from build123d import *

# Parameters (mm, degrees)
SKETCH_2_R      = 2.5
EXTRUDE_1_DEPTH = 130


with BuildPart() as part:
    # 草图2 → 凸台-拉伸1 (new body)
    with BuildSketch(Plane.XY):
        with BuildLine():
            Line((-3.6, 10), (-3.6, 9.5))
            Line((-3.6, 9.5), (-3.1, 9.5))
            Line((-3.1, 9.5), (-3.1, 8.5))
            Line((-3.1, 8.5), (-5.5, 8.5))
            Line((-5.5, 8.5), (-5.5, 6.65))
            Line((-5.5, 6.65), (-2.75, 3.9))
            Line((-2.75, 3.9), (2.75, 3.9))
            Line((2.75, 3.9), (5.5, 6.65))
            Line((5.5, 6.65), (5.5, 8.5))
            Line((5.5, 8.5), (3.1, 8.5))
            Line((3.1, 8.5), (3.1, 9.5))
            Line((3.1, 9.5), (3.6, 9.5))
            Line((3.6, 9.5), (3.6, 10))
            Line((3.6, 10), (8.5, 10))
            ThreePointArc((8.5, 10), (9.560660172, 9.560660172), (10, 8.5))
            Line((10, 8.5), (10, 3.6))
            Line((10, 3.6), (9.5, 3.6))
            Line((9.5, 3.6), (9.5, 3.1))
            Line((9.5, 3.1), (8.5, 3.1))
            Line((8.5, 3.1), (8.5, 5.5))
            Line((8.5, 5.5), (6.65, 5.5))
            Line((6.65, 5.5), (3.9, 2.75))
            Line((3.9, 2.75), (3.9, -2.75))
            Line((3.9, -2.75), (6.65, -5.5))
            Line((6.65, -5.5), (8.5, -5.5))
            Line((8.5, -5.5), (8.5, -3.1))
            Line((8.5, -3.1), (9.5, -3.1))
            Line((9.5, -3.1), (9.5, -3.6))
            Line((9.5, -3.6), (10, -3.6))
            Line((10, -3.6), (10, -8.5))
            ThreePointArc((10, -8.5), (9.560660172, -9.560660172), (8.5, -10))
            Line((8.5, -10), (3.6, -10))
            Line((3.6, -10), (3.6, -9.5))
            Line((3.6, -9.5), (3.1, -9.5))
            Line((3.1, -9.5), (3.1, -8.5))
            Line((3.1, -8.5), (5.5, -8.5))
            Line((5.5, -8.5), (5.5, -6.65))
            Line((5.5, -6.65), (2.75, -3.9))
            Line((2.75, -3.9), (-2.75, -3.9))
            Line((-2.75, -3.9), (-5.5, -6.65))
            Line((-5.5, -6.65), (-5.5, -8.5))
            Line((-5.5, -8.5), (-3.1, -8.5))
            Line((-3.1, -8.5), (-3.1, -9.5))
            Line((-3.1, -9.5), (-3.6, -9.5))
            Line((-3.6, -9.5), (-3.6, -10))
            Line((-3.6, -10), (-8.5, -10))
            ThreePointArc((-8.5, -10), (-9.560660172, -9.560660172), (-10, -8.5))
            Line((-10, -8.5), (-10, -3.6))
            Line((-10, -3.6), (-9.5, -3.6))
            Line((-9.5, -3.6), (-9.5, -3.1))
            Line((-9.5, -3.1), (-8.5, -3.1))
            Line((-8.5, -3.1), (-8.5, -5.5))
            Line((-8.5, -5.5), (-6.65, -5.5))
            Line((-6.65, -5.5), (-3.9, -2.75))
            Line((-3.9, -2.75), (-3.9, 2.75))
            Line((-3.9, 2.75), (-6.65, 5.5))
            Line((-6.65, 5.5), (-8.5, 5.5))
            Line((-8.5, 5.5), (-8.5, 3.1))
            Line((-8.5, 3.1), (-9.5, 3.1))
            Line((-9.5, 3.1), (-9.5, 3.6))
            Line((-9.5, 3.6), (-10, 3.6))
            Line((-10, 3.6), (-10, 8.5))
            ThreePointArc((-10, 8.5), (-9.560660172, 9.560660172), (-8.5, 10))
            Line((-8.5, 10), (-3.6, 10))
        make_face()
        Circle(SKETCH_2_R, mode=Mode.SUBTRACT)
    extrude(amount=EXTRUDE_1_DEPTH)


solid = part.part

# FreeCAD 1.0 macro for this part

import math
import FreeCAD as App
import Part
import Sketcher
Q = App.Units.Quantity

doc = App.newDocument("Part")
body = doc.addObject("PartDesign::Body", "Body")

sketch1 = body.newObject("Sketcher::SketchObject", "Sketch")
sketch1.AttachmentSupport = (doc.getObject("XY_Plane"), [""])
sketch1.MapMode = "FlatFace"
sketch1.addGeometry(Part.LineSegment(App.Vector(-3.6, 9.5, 0), App.Vector(-3.6, 10, 0)), False)
sketch1.addGeometry(Part.LineSegment(App.Vector(-3.6, 10, 0), App.Vector(-8.5, 10, 0)), False)
sketch1.addGeometry(Part.ArcOfCircle(Part.Circle(App.Vector(-8.5, 8.5, 0), App.Vector(0, 0, 1), 1.5), math.radians(90), math.radians(180)), False)
sketch1.addGeometry(Part.LineSegment(App.Vector(-10, 8.5, 0), App.Vector(-10, 3.6, 0)), False)
sketch1.addGeometry(Part.LineSegment(App.Vector(-10, 3.6, 0), App.Vector(-9.5, 3.6, 0)), False)
sketch1.addGeometry(Part.LineSegment(App.Vector(-9.5, 3.6, 0), App.Vector(-9.5, 3.1, 0)), False)
sketch1.addGeometry(Part.LineSegment(App.Vector(-9.5, 3.1, 0), App.Vector(-8.5, 3.1, 0)), False)
sketch1.addGeometry(Part.LineSegment(App.Vector(-8.5, 3.1, 0), App.Vector(-8.5, 5.5, 0)), False)
sketch1.addGeometry(Part.LineSegment(App.Vector(-8.5, 5.5, 0), App.Vector(-6.7, 5.5, 0)), False)
sketch1.addGeometry(Part.LineSegment(App.Vector(-6.7, 5.5, 0), App.Vector(-3.9, 2.8, 0)), False)
sketch1.addGeometry(Part.LineSegment(App.Vector(-3.9, 2.8, 0), App.Vector(-3.9, -2.8, 0)), False)
sketch1.addGeometry(Part.LineSegment(App.Vector(-3.9, -2.8, 0), App.Vector(-6.7, -5.5, 0)), False)
sketch1.addGeometry(Part.LineSegment(App.Vector(-6.7, -5.5, 0), App.Vector(-8.5, -5.5, 0)), False)
sketch1.addGeometry(Part.LineSegment(App.Vector(-8.5, -5.5, 0), App.Vector(-8.5, -3.1, 0)), False)
sketch1.addGeometry(Part.LineSegment(App.Vector(-8.5, -3.1, 0), App.Vector(-9.5, -3.1, 0)), False)
sketch1.addGeometry(Part.LineSegment(App.Vector(-9.5, -3.1, 0), App.Vector(-9.5, -3.6, 0)), False)
sketch1.addGeometry(Part.LineSegment(App.Vector(-9.5, -3.6, 0), App.Vector(-10, -3.6, 0)), False)
sketch1.addGeometry(Part.LineSegment(App.Vector(-10, -3.6, 0), App.Vector(-10, -8.5, 0)), False)
sketch1.addGeometry(Part.ArcOfCircle(Part.Circle(App.Vector(-8.5, -8.5, 0), App.Vector(0, 0, 1), 1.5), math.radians(180), math.radians(270)), False)
sketch1.addGeometry(Part.LineSegment(App.Vector(-8.5, -10, 0), App.Vector(-3.6, -10, 0)), False)
sketch1.addGeometry(Part.LineSegment(App.Vector(-3.6, -10, 0), App.Vector(-3.6, -9.5, 0)), False)
sketch1.addGeometry(Part.LineSegment(App.Vector(-3.6, -9.5, 0), App.Vector(-3.1, -9.5, 0)), False)
sketch1.addGeometry(Part.LineSegment(App.Vector(-3.1, -9.5, 0), App.Vector(-3.1, -8.5, 0)), False)
sketch1.addGeometry(Part.LineSegment(App.Vector(-3.1, -8.5, 0), App.Vector(-5.5, -8.5, 0)), False)
sketch1.addGeometry(Part.LineSegment(App.Vector(-5.5, -8.5, 0), App.Vector(-5.5, -6.7, 0)), False)
sketch1.addGeometry(Part.LineSegment(App.Vector(-5.5, -6.7, 0), App.Vector(-2.8, -3.9, 0)), False)
sketch1.addGeometry(Part.LineSegment(App.Vector(-2.8, -3.9, 0), App.Vector(2.8, -3.9, 0)), False)
sketch1.addGeometry(Part.LineSegment(App.Vector(2.8, -3.9, 0), App.Vector(5.5, -6.7, 0)), False)
sketch1.addGeometry(Part.LineSegment(App.Vector(5.5, -6.7, 0), App.Vector(5.5, -8.5, 0)), False)
sketch1.addGeometry(Part.LineSegment(App.Vector(5.5, -8.5, 0), App.Vector(3.1, -8.5, 0)), False)
sketch1.addGeometry(Part.LineSegment(App.Vector(3.1, -8.5, 0), App.Vector(3.1, -9.5, 0)), False)
sketch1.addGeometry(Part.LineSegment(App.Vector(3.1, -9.5, 0), App.Vector(3.6, -9.5, 0)), False)
sketch1.addGeometry(Part.LineSegment(App.Vector(3.6, -9.5, 0), App.Vector(3.6, -10, 0)), False)
sketch1.addGeometry(Part.LineSegment(App.Vector(3.6, -10, 0), App.Vector(8.5, -10, 0)), False)
sketch1.addGeometry(Part.ArcOfCircle(Part.Circle(App.Vector(8.5, -8.5, 0), App.Vector(0, 0, 1), 1.5), math.radians(-90), math.radians(0)), False)
sketch1.addGeometry(Part.LineSegment(App.Vector(10, -8.5, 0), App.Vector(10, -3.6, 0)), False)
sketch1.addGeometry(Part.LineSegment(App.Vector(10, -3.6, 0), App.Vector(9.5, -3.6, 0)), False)
sketch1.addGeometry(Part.LineSegment(App.Vector(9.5, -3.6, 0), App.Vector(9.5, -3.1, 0)), False)
sketch1.addGeometry(Part.LineSegment(App.Vector(9.5, -3.1, 0), App.Vector(8.5, -3.1, 0)), False)
sketch1.addGeometry(Part.LineSegment(App.Vector(8.5, -3.1, 0), App.Vector(8.5, -5.5, 0)), False)
sketch1.addGeometry(Part.LineSegment(App.Vector(8.5, -5.5, 0), App.Vector(6.7, -5.5, 0)), False)
sketch1.addGeometry(Part.LineSegment(App.Vector(6.7, -5.5, 0), App.Vector(3.9, -2.8, 0)), False)
sketch1.addGeometry(Part.LineSegment(App.Vector(3.9, -2.8, 0), App.Vector(3.9, 2.8, 0)), False)
sketch1.addGeometry(Part.LineSegment(App.Vector(3.9, 2.8, 0), App.Vector(6.7, 5.5, 0)), False)
sketch1.addGeometry(Part.LineSegment(App.Vector(6.7, 5.5, 0), App.Vector(8.5, 5.5, 0)), False)
sketch1.addGeometry(Part.LineSegment(App.Vector(8.5, 5.5, 0), App.Vector(8.5, 3.1, 0)), False)
sketch1.addGeometry(Part.LineSegment(App.Vector(8.5, 3.1, 0), App.Vector(9.5, 3.1, 0)), False)
sketch1.addGeometry(Part.LineSegment(App.Vector(9.5, 3.1, 0), App.Vector(9.5, 3.6, 0)), False)
sketch1.addGeometry(Part.LineSegment(App.Vector(9.5, 3.6, 0), App.Vector(10, 3.6, 0)), False)
sketch1.addGeometry(Part.LineSegment(App.Vector(10, 3.6, 0), App.Vector(10, 8.5, 0)), False)
sketch1.addGeometry(Part.ArcOfCircle(Part.Circle(App.Vector(8.5, 8.5, 0), App.Vector(0, 0, 1), 1.5), math.radians(0), math.radians(90)), False)
sketch1.addGeometry(Part.LineSegment(App.Vector(8.5, 10, 0), App.Vector(3.6, 10, 0)), False)
sketch1.addGeometry(Part.LineSegment(App.Vector(3.6, 10, 0), App.Vector(3.6, 9.5, 0)), False)
sketch1.addGeometry(Part.LineSegment(App.Vector(3.6, 9.5, 0), App.Vector(3.1, 9.5, 0)), False)
sketch1.addGeometry(Part.LineSegment(App.Vector(3.1, 9.5, 0), App.Vector(3.1, 8.5, 0)), False)
sketch1.addGeometry(Part.LineSegment(App.Vector(3.1, 8.5, 0), App.Vector(5.5, 8.5, 0)), False)
sketch1.addGeometry(Part.LineSegment(App.Vector(5.5, 8.5, 0), App.Vector(5.5, 6.7, 0)), False)
sketch1.addGeometry(Part.LineSegment(App.Vector(5.5, 6.7, 0), App.Vector(2.8, 3.9, 0)), False)
sketch1.addGeometry(Part.LineSegment(App.Vector(2.8, 3.9, 0), App.Vector(-2.8, 3.9, 0)), False)
sketch1.addGeometry(Part.LineSegment(App.Vector(-2.8, 3.9, 0), App.Vector(-5.5, 6.7, 0)), False)
sketch1.addGeometry(Part.LineSegment(App.Vector(-5.5, 6.7, 0), App.Vector(-5.5, 8.5, 0)), False)
sketch1.addGeometry(Part.LineSegment(App.Vector(-5.5, 8.5, 0), App.Vector(-3.1, 8.5, 0)), False)
sketch1.addGeometry(Part.LineSegment(App.Vector(-3.1, 8.5, 0), App.Vector(-3.1, 9.5, 0)), False)
sketch1.addGeometry(Part.LineSegment(App.Vector(-3.1, 9.5, 0), App.Vector(-3.6, 9.5, 0)), False)
sketch1.addGeometry(Part.Circle(App.Vector(0, 0, 0), App.Vector(0, 0, 1), 2.5), False)
sketch1.addConstraint(Sketcher.Constraint("Coincident", 0, 2, 1, 1))
sketch1.addConstraint(Sketcher.Constraint("Tangent", 1, 2, 2, 1))
sketch1.addConstraint(Sketcher.Constraint("Tangent", 2, 2, 3, 1))
sketch1.addConstraint(Sketcher.Constraint("Coincident", 3, 2, 4, 1))
sketch1.addConstraint(Sketcher.Constraint("Coincident", 4, 2, 5, 1))
sketch1.addConstraint(Sketcher.Constraint("Coincident", 5, 2, 6, 1))
sketch1.addConstraint(Sketcher.Constraint("Coincident", 6, 2, 7, 1))
sketch1.addConstraint(Sketcher.Constraint("Coincident", 7, 2, 8, 1))
sketch1.addConstraint(Sketcher.Constraint("Coincident", 8, 2, 9, 1))
sketch1.addConstraint(Sketcher.Constraint("Coincident", 9, 2, 10, 1))
sketch1.addConstraint(Sketcher.Constraint("Coincident", 10, 2, 11, 1))
sketch1.addConstraint(Sketcher.Constraint("Coincident", 11, 2, 12, 1))
sketch1.addConstraint(Sketcher.Constraint("Coincident", 12, 2, 13, 1))
sketch1.addConstraint(Sketcher.Constraint("Coincident", 13, 2, 14, 1))
sketch1.addConstraint(Sketcher.Constraint("Coincident", 14, 2, 15, 1))
sketch1.addConstraint(Sketcher.Constraint("Coincident", 15, 2, 16, 1))
sketch1.addConstraint(Sketcher.Constraint("Coincident", 16, 2, 17, 1))
sketch1.addConstraint(Sketcher.Constraint("Tangent", 17, 2, 18, 1))
sketch1.addConstraint(Sketcher.Constraint("Tangent", 18, 2, 19, 1))
sketch1.addConstraint(Sketcher.Constraint("Coincident", 19, 2, 20, 1))
sketch1.addConstraint(Sketcher.Constraint("Coincident", 20, 2, 21, 1))
sketch1.addConstraint(Sketcher.Constraint("Coincident", 21, 2, 22, 1))
sketch1.addConstraint(Sketcher.Constraint("Coincident", 22, 2, 23, 1))
sketch1.addConstraint(Sketcher.Constraint("Coincident", 23, 2, 24, 1))
sketch1.addConstraint(Sketcher.Constraint("Coincident", 24, 2, 25, 1))
sketch1.addConstraint(Sketcher.Constraint("Coincident", 25, 2, 26, 1))
sketch1.addConstraint(Sketcher.Constraint("Coincident", 26, 2, 27, 1))
sketch1.addConstraint(Sketcher.Constraint("Coincident", 27, 2, 28, 1))
sketch1.addConstraint(Sketcher.Constraint("Coincident", 28, 2, 29, 1))
sketch1.addConstraint(Sketcher.Constraint("Coincident", 29, 2, 30, 1))
sketch1.addConstraint(Sketcher.Constraint("Coincident", 30, 2, 31, 1))
sketch1.addConstraint(Sketcher.Constraint("Coincident", 31, 2, 32, 1))
sketch1.addConstraint(Sketcher.Constraint("Coincident", 32, 2, 33, 1))
sketch1.addConstraint(Sketcher.Constraint("Tangent", 33, 2, 34, 1))
sketch1.addConstraint(Sketcher.Constraint("Tangent", 34, 2, 35, 1))
sketch1.addConstraint(Sketcher.Constraint("Coincident", 35, 2, 36, 1))
sketch1.addConstraint(Sketcher.Constraint("Coincident", 36, 2, 37, 1))
sketch1.addConstraint(Sketcher.Constraint("Coincident", 37, 2, 38, 1))
sketch1.addConstraint(Sketcher.Constraint("Coincident", 38, 2, 39, 1))
sketch1.addConstraint(Sketcher.Constraint("Coincident", 39, 2, 40, 1))
sketch1.addConstraint(Sketcher.Constraint("Coincident", 40, 2, 41, 1))
sketch1.addConstraint(Sketcher.Constraint("Coincident", 41, 2, 42, 1))
sketch1.addConstraint(Sketcher.Constraint("Coincident", 42, 2, 43, 1))
sketch1.addConstraint(Sketcher.Constraint("Coincident", 43, 2, 44, 1))
sketch1.addConstraint(Sketcher.Constraint("Coincident", 44, 2, 45, 1))
sketch1.addConstraint(Sketcher.Constraint("Coincident", 45, 2, 46, 1))
sketch1.addConstraint(Sketcher.Constraint("Coincident", 46, 2, 47, 1))
sketch1.addConstraint(Sketcher.Constraint("Coincident", 47, 2, 48, 1))
sketch1.addConstraint(Sketcher.Constraint("Coincident", 48, 2, 49, 1))
sketch1.addConstraint(Sketcher.Constraint("Tangent", 49, 2, 50, 1))
sketch1.addConstraint(Sketcher.Constraint("Tangent", 50, 2, 51, 1))
sketch1.addConstraint(Sketcher.Constraint("Coincident", 51, 2, 52, 1))
sketch1.addConstraint(Sketcher.Constraint("Coincident", 52, 2, 53, 1))
sketch1.addConstraint(Sketcher.Constraint("Coincident", 53, 2, 54, 1))
sketch1.addConstraint(Sketcher.Constraint("Coincident", 54, 2, 55, 1))
sketch1.addConstraint(Sketcher.Constraint("Coincident", 55, 2, 56, 1))
sketch1.addConstraint(Sketcher.Constraint("Coincident", 56, 2, 57, 1))
sketch1.addConstraint(Sketcher.Constraint("Coincident", 57, 2, 58, 1))
sketch1.addConstraint(Sketcher.Constraint("Coincident", 58, 2, 59, 1))
sketch1.addConstraint(Sketcher.Constraint("Coincident", 59, 2, 60, 1))
sketch1.addConstraint(Sketcher.Constraint("Coincident", 60, 2, 61, 1))
sketch1.addConstraint(Sketcher.Constraint("Coincident", 61, 2, 62, 1))
sketch1.addConstraint(Sketcher.Constraint("Coincident", 62, 2, 63, 1))
sketch1.addConstraint(Sketcher.Constraint("Coincident", 63, 2, 0, 1))
sketch1.addConstraint(Sketcher.Constraint("Vertical", 0))
sketch1.addConstraint(Sketcher.Constraint("Horizontal", 1))
sketch1.addConstraint(Sketcher.Constraint("Vertical", 3))
sketch1.addConstraint(Sketcher.Constraint("Horizontal", 4))
sketch1.addConstraint(Sketcher.Constraint("Vertical", 5))
sketch1.addConstraint(Sketcher.Constraint("Horizontal", 6))
sketch1.addConstraint(Sketcher.Constraint("Vertical", 7))
sketch1.addConstraint(Sketcher.Constraint("Horizontal", 8))
sketch1.addConstraint(Sketcher.Constraint("Vertical", 10))
sketch1.addConstraint(Sketcher.Constraint("Horizontal", 12))
sketch1.addConstraint(Sketcher.Constraint("Vertical", 13))
sketch1.addConstraint(Sketcher.Constraint("Horizontal", 14))
sketch1.addConstraint(Sketcher.Constraint("Vertical", 15))
sketch1.addConstraint(Sketcher.Constraint("Horizontal", 16))
sketch1.addConstraint(Sketcher.Constraint("Vertical", 17))
sketch1.addConstraint(Sketcher.Constraint("Horizontal", 19))
sketch1.addConstraint(Sketcher.Constraint("Vertical", 20))
sketch1.addConstraint(Sketcher.Constraint("Horizontal", 21))
sketch1.addConstraint(Sketcher.Constraint("Vertical", 22))
sketch1.addConstraint(Sketcher.Constraint("Horizontal", 23))
sketch1.addConstraint(Sketcher.Constraint("Vertical", 24))
sketch1.addConstraint(Sketcher.Constraint("Horizontal", 26))
sketch1.addConstraint(Sketcher.Constraint("Vertical", 28))
sketch1.addConstraint(Sketcher.Constraint("Horizontal", 29))
sketch1.addConstraint(Sketcher.Constraint("Vertical", 30))
sketch1.addConstraint(Sketcher.Constraint("Horizontal", 31))
sketch1.addConstraint(Sketcher.Constraint("Vertical", 32))
sketch1.addConstraint(Sketcher.Constraint("Horizontal", 33))
sketch1.addConstraint(Sketcher.Constraint("Vertical", 35))
sketch1.addConstraint(Sketcher.Constraint("Horizontal", 36))
sketch1.addConstraint(Sketcher.Constraint("Vertical", 37))
sketch1.addConstraint(Sketcher.Constraint("Horizontal", 38))
sketch1.addConstraint(Sketcher.Constraint("Vertical", 39))
sketch1.addConstraint(Sketcher.Constraint("Horizontal", 40))
sketch1.addConstraint(Sketcher.Constraint("Vertical", 42))
sketch1.addConstraint(Sketcher.Constraint("Horizontal", 44))
sketch1.addConstraint(Sketcher.Constraint("Vertical", 45))
sketch1.addConstraint(Sketcher.Constraint("Horizontal", 46))
sketch1.addConstraint(Sketcher.Constraint("Vertical", 47))
sketch1.addConstraint(Sketcher.Constraint("Horizontal", 48))
sketch1.addConstraint(Sketcher.Constraint("Vertical", 49))
sketch1.addConstraint(Sketcher.Constraint("Horizontal", 51))
sketch1.addConstraint(Sketcher.Constraint("Vertical", 52))
sketch1.addConstraint(Sketcher.Constraint("Horizontal", 53))
sketch1.addConstraint(Sketcher.Constraint("Vertical", 54))
sketch1.addConstraint(Sketcher.Constraint("Horizontal", 55))
sketch1.addConstraint(Sketcher.Constraint("Vertical", 56))
sketch1.addConstraint(Sketcher.Constraint("Horizontal", 58))
sketch1.addConstraint(Sketcher.Constraint("Vertical", 60))
sketch1.addConstraint(Sketcher.Constraint("Horizontal", 61))
sketch1.addConstraint(Sketcher.Constraint("Vertical", 62))
sketch1.addConstraint(Sketcher.Constraint("Horizontal", 63))
sketch1.addConstraint(Sketcher.Constraint("Coincident", 64, 3, -1, 1))
sketch1.addConstraint(Sketcher.Constraint("Equal", 2, 18))
sketch1.addConstraint(Sketcher.Constraint("Equal", 18, 34))
sketch1.addConstraint(Sketcher.Constraint("Equal", 34, 50))
sketch1.addConstraint(Sketcher.Constraint("Symmetric", 2, 3, 34, 3, -1, 1))
sketch1.addConstraint(Sketcher.Constraint("Symmetric", 18, 3, 50, 3, -1, 1))
sketch1.addConstraint(Sketcher.Constraint("Symmetric", 4, 2, 36, 2, -1, 1))
sketch1.addConstraint(Sketcher.Constraint("Symmetric", 6, 2, 38, 2, -1, 1))
sketch1.addConstraint(Sketcher.Constraint("Symmetric", 8, 2, 40, 2, -1, 1))
sketch1.addConstraint(Sketcher.Constraint("Symmetric", 9, 2, 41, 2, -1, 1))
sketch1.addConstraint(Sketcher.Constraint("Symmetric", 11, 2, 43, 2, -1, 1))
sketch1.addConstraint(Sketcher.Constraint("Symmetric", 13, 2, 45, 2, -1, 1))
sketch1.addConstraint(Sketcher.Constraint("Symmetric", 15, 2, 47, 2, -1, 1))
sketch1.addConstraint(Sketcher.Constraint("Symmetric", 20, 2, 52, 2, -1, 1))
sketch1.addConstraint(Sketcher.Constraint("Symmetric", 22, 2, 54, 2, -1, 1))
sketch1.addConstraint(Sketcher.Constraint("Symmetric", 24, 2, 56, 2, -1, 1))
sketch1.addConstraint(Sketcher.Constraint("Symmetric", 25, 2, 57, 2, -1, 1))
sketch1.addConstraint(Sketcher.Constraint("Symmetric", 27, 2, 59, 2, -1, 1))
sketch1.addConstraint(Sketcher.Constraint("Symmetric", 29, 2, 61, 2, -1, 1))
sketch1.addConstraint(Sketcher.Constraint("Symmetric", 31, 2, 63, 2, -1, 1))
sketch1.addConstraint(Sketcher.Constraint("Symmetric", 18, 3, 34, 3, -2))
sketch1.addConstraint(Sketcher.Constraint("Symmetric", 24, 2, 27, 2, -2))
sketch1.addConstraint(Sketcher.Constraint("Symmetric", 22, 2, 29, 2, -2))
sketch1.addConstraint(Sketcher.Constraint("Symmetric", 20, 2, 31, 2, -2))
sketch1.addConstraint(Sketcher.Constraint("Symmetric", 15, 2, 36, 2, -2))
sketch1.addConstraint(Sketcher.Constraint("Symmetric", 13, 2, 38, 2, -2))
sketch1.addConstraint(Sketcher.Constraint("Symmetric", 11, 2, 40, 2, -2))
sketch1.addConstraint(Sketcher.Constraint("Perpendicular", 9, 11))
sketch1.addConstraint(Sketcher.Constraint("Parallel", 11, 25))
sketch1.addConstraint(Sketcher.Constraint("Perpendicular", 25, 27))
sketch1.addConstraint(Sketcher.Constraint("Perpendicular", 41, 43))
sketch1.addConstraint(Sketcher.Constraint("Perpendicular", 57, 59))
sketch1.addConstraint(Sketcher.Constraint("Horizontal", 17, 2, 22, 2))
sketch1.addConstraint(Sketcher.Constraint("Horizontal", 10, 2, 41, 2))
sketch1.addConstraint(Sketcher.Constraint("Vertical", 1, 2, 6, 2))
sketch1.addConstraint(Sketcher.Constraint("Equal", 16, 21))
sketch1.addConstraint(Sketcher.Constraint("Equal", 63, 0))
sketch1.addConstraint(Sketcher.Constraint("Equal", 51, 3))
sketch1.addConstraint(Sketcher.Constraint("Equal", 0, 5))
sketch1.addConstraint(Sketcher.Constraint("Equal", 61, 7))
sketch1.addConstraint(Sketcher.Constraint("Equal", 58, 10))
sketch1.addConstraint(Sketcher.Constraint("Equal", 44, 24))
sketch1.addConstraint(Sketcher.Constraint("Equal", 11, 25))
sketch1.addConstraint(Sketcher.Constraint("Diameter", 64, Q("5 mm")))
sketch1.addConstraint(Sketcher.Constraint("Radius", 2, Q("1.5 mm")))
sketch1.addConstraint(Sketcher.Constraint("DistanceX", 6, 1, 6, 2, Q("1 mm")))
sketch1.addConstraint(Sketcher.Constraint("DistanceX", 1, 2, 1, 1, Q("4.9 mm")))
sketch1.addConstraint(Sketcher.Constraint("DistanceX", 23, 2, 23, 1, Q("2.4 mm")))
sketch1.addConstraint(Sketcher.Constraint("DistanceX", 26, 1, 26, 2, Q("5.5 mm")))
sketch1.addConstraint(Sketcher.Constraint("DistanceY", -1, 1, 0, 2, Q("10 mm")))
sketch1.addConstraint(Sketcher.Constraint("DistanceX", 8, 1, 8, 2, Q("1.85 mm")))
pad1 = body.newObject("PartDesign::Pad", "Pad")
pad1.Profile = sketch1
pad1.Length = 130

doc.recompute()
